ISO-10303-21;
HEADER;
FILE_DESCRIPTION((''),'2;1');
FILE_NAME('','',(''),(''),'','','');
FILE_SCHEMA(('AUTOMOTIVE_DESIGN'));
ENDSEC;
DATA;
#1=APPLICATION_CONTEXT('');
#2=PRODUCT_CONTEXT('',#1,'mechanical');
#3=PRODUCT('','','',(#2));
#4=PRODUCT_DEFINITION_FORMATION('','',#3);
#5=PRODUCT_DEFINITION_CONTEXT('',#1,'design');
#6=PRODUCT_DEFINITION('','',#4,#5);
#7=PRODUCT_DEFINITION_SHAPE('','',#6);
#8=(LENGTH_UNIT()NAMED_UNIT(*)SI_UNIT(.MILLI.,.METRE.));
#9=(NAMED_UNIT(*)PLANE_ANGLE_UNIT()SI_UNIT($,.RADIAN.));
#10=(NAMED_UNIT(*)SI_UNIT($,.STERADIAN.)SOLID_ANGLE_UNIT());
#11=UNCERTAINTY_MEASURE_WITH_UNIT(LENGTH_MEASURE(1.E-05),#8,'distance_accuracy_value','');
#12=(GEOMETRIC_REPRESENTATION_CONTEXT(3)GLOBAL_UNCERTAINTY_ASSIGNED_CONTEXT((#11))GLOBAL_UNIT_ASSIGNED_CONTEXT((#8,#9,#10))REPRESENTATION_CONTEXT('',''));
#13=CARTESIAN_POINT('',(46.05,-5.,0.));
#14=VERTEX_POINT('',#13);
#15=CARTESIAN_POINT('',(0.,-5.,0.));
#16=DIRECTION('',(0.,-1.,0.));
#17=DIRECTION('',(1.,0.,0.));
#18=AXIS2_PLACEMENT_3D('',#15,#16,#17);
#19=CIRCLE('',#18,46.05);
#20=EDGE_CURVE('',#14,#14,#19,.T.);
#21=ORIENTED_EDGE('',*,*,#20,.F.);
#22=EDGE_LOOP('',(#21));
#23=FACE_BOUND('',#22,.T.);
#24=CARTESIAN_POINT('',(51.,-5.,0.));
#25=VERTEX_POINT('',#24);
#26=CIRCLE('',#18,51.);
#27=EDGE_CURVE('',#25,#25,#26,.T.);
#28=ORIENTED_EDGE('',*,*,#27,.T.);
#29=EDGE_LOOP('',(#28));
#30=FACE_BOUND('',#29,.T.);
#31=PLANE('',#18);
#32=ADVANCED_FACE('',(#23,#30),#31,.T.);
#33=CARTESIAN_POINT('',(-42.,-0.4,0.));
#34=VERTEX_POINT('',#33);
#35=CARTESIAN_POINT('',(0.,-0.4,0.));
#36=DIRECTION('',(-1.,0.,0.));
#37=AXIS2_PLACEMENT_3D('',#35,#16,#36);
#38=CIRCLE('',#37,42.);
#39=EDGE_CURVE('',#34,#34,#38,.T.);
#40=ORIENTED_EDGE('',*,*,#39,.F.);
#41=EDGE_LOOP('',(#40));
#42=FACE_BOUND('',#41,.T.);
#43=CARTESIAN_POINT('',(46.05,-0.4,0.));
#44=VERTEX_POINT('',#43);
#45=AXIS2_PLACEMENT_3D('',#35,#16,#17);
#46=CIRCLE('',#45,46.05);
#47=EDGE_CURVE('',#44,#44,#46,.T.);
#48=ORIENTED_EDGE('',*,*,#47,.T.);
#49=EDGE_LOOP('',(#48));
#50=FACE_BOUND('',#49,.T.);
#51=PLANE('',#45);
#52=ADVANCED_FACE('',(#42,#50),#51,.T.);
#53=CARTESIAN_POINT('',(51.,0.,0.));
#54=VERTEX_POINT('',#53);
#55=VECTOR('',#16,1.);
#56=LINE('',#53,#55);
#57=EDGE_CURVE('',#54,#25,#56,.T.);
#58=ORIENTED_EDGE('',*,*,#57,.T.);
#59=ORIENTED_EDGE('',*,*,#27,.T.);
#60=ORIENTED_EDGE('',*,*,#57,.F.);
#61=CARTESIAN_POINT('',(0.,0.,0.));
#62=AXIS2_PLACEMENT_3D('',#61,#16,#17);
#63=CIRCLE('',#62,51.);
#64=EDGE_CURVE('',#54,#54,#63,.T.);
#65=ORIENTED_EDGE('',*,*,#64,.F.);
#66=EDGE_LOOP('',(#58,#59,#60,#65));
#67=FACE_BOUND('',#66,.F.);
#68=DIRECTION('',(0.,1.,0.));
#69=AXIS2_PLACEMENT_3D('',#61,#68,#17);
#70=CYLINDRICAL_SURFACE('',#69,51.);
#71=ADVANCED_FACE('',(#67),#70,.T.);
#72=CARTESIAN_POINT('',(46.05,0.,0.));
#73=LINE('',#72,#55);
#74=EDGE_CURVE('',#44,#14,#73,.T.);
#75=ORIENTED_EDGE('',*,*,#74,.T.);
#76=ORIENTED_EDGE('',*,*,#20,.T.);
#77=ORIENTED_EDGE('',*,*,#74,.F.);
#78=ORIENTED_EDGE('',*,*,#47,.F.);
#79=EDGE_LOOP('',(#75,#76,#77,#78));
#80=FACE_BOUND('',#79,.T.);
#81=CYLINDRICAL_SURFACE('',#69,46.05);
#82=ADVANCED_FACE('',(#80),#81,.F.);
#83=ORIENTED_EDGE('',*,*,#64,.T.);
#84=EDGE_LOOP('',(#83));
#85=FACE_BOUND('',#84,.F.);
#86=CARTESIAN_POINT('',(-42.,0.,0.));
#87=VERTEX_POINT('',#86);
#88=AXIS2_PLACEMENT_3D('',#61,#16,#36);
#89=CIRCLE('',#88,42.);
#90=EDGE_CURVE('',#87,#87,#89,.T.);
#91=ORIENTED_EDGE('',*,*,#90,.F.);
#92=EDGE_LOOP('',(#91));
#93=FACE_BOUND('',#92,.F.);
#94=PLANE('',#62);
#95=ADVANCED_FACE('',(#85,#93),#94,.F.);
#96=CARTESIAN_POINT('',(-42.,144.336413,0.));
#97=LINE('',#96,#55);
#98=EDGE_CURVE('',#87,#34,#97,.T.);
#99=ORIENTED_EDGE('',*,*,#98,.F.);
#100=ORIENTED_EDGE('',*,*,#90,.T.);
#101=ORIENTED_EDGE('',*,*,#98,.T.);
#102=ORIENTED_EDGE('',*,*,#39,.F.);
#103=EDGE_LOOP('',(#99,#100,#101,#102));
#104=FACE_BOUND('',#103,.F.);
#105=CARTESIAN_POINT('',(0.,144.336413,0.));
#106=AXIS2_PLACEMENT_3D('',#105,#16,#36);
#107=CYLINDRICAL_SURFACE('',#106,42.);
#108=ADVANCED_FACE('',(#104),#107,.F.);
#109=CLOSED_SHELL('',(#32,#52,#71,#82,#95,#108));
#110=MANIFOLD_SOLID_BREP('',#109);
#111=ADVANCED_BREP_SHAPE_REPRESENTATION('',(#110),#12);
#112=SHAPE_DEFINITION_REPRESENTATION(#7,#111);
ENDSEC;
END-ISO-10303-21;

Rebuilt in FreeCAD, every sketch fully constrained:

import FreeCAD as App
import Part
import Sketcher

doc = App.newDocument("Part")
body = doc.addObject("PartDesign::Body", "Body")

sketch1 = doc.addObject("Sketcher::SketchObject", "Sketch")
body.addObject(sketch1)
sketch1.AttachmentSupport = (doc.XZ_Plane, [""])
sketch1.MapMode = "FlatFace"
sketch1.addGeometry(Part.Circle(App.Vector(0, 0, 0), App.Vector(0, 0, 1), 51), False)
sketch1.addGeometry(Part.Circle(App.Vector(0, 0, 0), App.Vector(0, 0, 1), 46), False)
sketch1.addConstraint(Sketcher.Constraint("Coincident", 0, 3, -1, 1))
sketch1.addConstraint(Sketcher.Constraint("Coincident", 1, 3, -1, 1))
sketch1.addConstraint(Sketcher.Constraint("Diameter", 0, 102.0))
sketch1.addConstraint(Sketcher.Constraint("Diameter", 1, 92.1))
pad1 = doc.addObject("PartDesign::Pad", "Pad")
body.addObject(pad1)
pad1.Profile = sketch1
pad1.Length = 5

sketch2 = doc.addObject("Sketcher::SketchObject", "Sketch001")
body.addObject(sketch2)
sketch2.AttachmentSupport = (doc.XZ_Plane, [""])
sketch2.MapMode = "FlatFace"
sketch2.addGeometry(Part.Circle(App.Vector(0, 0, 0), App.Vector(0, 0, 1), 46), False)
sketch2.addConstraint(Sketcher.Constraint("Coincident", 0, 3, -1, 1))
sketch2.addConstraint(Sketcher.Constraint("Diameter", 0, 92.1))
pad2 = doc.addObject("PartDesign::Pad", "Pad001")
body.addObject(pad2)
pad2.Profile = sketch2
pad2.Length = 0.4

sketch3 = doc.addObject("Sketcher::SketchObject", "Sketch002")
body.addObject(sketch3)
sketch3.AttachmentSupport = (doc.XZ_Plane, [""])
sketch3.MapMode = "FlatFace"
sketch3.addGeometry(Part.Circle(App.Vector(0, 0, 0), App.Vector(0, 0, 1), 42), False)
sketch3.addConstraint(Sketcher.Constraint("Coincident", 0, 3, -1, 1))
sketch3.addConstraint(Sketcher.Constraint("Diameter", 0, 84.0))
doc.recompute()
hole = doc.addObject("PartDesign::Hole", "Hole")
body.addObject(hole)
hole.Profile = sketch3
hole.ThreadType = "None"
hole.Diameter = 84
hole.DepthType = "ThroughAll"
hole.Reversed = True

doc.recompute()
